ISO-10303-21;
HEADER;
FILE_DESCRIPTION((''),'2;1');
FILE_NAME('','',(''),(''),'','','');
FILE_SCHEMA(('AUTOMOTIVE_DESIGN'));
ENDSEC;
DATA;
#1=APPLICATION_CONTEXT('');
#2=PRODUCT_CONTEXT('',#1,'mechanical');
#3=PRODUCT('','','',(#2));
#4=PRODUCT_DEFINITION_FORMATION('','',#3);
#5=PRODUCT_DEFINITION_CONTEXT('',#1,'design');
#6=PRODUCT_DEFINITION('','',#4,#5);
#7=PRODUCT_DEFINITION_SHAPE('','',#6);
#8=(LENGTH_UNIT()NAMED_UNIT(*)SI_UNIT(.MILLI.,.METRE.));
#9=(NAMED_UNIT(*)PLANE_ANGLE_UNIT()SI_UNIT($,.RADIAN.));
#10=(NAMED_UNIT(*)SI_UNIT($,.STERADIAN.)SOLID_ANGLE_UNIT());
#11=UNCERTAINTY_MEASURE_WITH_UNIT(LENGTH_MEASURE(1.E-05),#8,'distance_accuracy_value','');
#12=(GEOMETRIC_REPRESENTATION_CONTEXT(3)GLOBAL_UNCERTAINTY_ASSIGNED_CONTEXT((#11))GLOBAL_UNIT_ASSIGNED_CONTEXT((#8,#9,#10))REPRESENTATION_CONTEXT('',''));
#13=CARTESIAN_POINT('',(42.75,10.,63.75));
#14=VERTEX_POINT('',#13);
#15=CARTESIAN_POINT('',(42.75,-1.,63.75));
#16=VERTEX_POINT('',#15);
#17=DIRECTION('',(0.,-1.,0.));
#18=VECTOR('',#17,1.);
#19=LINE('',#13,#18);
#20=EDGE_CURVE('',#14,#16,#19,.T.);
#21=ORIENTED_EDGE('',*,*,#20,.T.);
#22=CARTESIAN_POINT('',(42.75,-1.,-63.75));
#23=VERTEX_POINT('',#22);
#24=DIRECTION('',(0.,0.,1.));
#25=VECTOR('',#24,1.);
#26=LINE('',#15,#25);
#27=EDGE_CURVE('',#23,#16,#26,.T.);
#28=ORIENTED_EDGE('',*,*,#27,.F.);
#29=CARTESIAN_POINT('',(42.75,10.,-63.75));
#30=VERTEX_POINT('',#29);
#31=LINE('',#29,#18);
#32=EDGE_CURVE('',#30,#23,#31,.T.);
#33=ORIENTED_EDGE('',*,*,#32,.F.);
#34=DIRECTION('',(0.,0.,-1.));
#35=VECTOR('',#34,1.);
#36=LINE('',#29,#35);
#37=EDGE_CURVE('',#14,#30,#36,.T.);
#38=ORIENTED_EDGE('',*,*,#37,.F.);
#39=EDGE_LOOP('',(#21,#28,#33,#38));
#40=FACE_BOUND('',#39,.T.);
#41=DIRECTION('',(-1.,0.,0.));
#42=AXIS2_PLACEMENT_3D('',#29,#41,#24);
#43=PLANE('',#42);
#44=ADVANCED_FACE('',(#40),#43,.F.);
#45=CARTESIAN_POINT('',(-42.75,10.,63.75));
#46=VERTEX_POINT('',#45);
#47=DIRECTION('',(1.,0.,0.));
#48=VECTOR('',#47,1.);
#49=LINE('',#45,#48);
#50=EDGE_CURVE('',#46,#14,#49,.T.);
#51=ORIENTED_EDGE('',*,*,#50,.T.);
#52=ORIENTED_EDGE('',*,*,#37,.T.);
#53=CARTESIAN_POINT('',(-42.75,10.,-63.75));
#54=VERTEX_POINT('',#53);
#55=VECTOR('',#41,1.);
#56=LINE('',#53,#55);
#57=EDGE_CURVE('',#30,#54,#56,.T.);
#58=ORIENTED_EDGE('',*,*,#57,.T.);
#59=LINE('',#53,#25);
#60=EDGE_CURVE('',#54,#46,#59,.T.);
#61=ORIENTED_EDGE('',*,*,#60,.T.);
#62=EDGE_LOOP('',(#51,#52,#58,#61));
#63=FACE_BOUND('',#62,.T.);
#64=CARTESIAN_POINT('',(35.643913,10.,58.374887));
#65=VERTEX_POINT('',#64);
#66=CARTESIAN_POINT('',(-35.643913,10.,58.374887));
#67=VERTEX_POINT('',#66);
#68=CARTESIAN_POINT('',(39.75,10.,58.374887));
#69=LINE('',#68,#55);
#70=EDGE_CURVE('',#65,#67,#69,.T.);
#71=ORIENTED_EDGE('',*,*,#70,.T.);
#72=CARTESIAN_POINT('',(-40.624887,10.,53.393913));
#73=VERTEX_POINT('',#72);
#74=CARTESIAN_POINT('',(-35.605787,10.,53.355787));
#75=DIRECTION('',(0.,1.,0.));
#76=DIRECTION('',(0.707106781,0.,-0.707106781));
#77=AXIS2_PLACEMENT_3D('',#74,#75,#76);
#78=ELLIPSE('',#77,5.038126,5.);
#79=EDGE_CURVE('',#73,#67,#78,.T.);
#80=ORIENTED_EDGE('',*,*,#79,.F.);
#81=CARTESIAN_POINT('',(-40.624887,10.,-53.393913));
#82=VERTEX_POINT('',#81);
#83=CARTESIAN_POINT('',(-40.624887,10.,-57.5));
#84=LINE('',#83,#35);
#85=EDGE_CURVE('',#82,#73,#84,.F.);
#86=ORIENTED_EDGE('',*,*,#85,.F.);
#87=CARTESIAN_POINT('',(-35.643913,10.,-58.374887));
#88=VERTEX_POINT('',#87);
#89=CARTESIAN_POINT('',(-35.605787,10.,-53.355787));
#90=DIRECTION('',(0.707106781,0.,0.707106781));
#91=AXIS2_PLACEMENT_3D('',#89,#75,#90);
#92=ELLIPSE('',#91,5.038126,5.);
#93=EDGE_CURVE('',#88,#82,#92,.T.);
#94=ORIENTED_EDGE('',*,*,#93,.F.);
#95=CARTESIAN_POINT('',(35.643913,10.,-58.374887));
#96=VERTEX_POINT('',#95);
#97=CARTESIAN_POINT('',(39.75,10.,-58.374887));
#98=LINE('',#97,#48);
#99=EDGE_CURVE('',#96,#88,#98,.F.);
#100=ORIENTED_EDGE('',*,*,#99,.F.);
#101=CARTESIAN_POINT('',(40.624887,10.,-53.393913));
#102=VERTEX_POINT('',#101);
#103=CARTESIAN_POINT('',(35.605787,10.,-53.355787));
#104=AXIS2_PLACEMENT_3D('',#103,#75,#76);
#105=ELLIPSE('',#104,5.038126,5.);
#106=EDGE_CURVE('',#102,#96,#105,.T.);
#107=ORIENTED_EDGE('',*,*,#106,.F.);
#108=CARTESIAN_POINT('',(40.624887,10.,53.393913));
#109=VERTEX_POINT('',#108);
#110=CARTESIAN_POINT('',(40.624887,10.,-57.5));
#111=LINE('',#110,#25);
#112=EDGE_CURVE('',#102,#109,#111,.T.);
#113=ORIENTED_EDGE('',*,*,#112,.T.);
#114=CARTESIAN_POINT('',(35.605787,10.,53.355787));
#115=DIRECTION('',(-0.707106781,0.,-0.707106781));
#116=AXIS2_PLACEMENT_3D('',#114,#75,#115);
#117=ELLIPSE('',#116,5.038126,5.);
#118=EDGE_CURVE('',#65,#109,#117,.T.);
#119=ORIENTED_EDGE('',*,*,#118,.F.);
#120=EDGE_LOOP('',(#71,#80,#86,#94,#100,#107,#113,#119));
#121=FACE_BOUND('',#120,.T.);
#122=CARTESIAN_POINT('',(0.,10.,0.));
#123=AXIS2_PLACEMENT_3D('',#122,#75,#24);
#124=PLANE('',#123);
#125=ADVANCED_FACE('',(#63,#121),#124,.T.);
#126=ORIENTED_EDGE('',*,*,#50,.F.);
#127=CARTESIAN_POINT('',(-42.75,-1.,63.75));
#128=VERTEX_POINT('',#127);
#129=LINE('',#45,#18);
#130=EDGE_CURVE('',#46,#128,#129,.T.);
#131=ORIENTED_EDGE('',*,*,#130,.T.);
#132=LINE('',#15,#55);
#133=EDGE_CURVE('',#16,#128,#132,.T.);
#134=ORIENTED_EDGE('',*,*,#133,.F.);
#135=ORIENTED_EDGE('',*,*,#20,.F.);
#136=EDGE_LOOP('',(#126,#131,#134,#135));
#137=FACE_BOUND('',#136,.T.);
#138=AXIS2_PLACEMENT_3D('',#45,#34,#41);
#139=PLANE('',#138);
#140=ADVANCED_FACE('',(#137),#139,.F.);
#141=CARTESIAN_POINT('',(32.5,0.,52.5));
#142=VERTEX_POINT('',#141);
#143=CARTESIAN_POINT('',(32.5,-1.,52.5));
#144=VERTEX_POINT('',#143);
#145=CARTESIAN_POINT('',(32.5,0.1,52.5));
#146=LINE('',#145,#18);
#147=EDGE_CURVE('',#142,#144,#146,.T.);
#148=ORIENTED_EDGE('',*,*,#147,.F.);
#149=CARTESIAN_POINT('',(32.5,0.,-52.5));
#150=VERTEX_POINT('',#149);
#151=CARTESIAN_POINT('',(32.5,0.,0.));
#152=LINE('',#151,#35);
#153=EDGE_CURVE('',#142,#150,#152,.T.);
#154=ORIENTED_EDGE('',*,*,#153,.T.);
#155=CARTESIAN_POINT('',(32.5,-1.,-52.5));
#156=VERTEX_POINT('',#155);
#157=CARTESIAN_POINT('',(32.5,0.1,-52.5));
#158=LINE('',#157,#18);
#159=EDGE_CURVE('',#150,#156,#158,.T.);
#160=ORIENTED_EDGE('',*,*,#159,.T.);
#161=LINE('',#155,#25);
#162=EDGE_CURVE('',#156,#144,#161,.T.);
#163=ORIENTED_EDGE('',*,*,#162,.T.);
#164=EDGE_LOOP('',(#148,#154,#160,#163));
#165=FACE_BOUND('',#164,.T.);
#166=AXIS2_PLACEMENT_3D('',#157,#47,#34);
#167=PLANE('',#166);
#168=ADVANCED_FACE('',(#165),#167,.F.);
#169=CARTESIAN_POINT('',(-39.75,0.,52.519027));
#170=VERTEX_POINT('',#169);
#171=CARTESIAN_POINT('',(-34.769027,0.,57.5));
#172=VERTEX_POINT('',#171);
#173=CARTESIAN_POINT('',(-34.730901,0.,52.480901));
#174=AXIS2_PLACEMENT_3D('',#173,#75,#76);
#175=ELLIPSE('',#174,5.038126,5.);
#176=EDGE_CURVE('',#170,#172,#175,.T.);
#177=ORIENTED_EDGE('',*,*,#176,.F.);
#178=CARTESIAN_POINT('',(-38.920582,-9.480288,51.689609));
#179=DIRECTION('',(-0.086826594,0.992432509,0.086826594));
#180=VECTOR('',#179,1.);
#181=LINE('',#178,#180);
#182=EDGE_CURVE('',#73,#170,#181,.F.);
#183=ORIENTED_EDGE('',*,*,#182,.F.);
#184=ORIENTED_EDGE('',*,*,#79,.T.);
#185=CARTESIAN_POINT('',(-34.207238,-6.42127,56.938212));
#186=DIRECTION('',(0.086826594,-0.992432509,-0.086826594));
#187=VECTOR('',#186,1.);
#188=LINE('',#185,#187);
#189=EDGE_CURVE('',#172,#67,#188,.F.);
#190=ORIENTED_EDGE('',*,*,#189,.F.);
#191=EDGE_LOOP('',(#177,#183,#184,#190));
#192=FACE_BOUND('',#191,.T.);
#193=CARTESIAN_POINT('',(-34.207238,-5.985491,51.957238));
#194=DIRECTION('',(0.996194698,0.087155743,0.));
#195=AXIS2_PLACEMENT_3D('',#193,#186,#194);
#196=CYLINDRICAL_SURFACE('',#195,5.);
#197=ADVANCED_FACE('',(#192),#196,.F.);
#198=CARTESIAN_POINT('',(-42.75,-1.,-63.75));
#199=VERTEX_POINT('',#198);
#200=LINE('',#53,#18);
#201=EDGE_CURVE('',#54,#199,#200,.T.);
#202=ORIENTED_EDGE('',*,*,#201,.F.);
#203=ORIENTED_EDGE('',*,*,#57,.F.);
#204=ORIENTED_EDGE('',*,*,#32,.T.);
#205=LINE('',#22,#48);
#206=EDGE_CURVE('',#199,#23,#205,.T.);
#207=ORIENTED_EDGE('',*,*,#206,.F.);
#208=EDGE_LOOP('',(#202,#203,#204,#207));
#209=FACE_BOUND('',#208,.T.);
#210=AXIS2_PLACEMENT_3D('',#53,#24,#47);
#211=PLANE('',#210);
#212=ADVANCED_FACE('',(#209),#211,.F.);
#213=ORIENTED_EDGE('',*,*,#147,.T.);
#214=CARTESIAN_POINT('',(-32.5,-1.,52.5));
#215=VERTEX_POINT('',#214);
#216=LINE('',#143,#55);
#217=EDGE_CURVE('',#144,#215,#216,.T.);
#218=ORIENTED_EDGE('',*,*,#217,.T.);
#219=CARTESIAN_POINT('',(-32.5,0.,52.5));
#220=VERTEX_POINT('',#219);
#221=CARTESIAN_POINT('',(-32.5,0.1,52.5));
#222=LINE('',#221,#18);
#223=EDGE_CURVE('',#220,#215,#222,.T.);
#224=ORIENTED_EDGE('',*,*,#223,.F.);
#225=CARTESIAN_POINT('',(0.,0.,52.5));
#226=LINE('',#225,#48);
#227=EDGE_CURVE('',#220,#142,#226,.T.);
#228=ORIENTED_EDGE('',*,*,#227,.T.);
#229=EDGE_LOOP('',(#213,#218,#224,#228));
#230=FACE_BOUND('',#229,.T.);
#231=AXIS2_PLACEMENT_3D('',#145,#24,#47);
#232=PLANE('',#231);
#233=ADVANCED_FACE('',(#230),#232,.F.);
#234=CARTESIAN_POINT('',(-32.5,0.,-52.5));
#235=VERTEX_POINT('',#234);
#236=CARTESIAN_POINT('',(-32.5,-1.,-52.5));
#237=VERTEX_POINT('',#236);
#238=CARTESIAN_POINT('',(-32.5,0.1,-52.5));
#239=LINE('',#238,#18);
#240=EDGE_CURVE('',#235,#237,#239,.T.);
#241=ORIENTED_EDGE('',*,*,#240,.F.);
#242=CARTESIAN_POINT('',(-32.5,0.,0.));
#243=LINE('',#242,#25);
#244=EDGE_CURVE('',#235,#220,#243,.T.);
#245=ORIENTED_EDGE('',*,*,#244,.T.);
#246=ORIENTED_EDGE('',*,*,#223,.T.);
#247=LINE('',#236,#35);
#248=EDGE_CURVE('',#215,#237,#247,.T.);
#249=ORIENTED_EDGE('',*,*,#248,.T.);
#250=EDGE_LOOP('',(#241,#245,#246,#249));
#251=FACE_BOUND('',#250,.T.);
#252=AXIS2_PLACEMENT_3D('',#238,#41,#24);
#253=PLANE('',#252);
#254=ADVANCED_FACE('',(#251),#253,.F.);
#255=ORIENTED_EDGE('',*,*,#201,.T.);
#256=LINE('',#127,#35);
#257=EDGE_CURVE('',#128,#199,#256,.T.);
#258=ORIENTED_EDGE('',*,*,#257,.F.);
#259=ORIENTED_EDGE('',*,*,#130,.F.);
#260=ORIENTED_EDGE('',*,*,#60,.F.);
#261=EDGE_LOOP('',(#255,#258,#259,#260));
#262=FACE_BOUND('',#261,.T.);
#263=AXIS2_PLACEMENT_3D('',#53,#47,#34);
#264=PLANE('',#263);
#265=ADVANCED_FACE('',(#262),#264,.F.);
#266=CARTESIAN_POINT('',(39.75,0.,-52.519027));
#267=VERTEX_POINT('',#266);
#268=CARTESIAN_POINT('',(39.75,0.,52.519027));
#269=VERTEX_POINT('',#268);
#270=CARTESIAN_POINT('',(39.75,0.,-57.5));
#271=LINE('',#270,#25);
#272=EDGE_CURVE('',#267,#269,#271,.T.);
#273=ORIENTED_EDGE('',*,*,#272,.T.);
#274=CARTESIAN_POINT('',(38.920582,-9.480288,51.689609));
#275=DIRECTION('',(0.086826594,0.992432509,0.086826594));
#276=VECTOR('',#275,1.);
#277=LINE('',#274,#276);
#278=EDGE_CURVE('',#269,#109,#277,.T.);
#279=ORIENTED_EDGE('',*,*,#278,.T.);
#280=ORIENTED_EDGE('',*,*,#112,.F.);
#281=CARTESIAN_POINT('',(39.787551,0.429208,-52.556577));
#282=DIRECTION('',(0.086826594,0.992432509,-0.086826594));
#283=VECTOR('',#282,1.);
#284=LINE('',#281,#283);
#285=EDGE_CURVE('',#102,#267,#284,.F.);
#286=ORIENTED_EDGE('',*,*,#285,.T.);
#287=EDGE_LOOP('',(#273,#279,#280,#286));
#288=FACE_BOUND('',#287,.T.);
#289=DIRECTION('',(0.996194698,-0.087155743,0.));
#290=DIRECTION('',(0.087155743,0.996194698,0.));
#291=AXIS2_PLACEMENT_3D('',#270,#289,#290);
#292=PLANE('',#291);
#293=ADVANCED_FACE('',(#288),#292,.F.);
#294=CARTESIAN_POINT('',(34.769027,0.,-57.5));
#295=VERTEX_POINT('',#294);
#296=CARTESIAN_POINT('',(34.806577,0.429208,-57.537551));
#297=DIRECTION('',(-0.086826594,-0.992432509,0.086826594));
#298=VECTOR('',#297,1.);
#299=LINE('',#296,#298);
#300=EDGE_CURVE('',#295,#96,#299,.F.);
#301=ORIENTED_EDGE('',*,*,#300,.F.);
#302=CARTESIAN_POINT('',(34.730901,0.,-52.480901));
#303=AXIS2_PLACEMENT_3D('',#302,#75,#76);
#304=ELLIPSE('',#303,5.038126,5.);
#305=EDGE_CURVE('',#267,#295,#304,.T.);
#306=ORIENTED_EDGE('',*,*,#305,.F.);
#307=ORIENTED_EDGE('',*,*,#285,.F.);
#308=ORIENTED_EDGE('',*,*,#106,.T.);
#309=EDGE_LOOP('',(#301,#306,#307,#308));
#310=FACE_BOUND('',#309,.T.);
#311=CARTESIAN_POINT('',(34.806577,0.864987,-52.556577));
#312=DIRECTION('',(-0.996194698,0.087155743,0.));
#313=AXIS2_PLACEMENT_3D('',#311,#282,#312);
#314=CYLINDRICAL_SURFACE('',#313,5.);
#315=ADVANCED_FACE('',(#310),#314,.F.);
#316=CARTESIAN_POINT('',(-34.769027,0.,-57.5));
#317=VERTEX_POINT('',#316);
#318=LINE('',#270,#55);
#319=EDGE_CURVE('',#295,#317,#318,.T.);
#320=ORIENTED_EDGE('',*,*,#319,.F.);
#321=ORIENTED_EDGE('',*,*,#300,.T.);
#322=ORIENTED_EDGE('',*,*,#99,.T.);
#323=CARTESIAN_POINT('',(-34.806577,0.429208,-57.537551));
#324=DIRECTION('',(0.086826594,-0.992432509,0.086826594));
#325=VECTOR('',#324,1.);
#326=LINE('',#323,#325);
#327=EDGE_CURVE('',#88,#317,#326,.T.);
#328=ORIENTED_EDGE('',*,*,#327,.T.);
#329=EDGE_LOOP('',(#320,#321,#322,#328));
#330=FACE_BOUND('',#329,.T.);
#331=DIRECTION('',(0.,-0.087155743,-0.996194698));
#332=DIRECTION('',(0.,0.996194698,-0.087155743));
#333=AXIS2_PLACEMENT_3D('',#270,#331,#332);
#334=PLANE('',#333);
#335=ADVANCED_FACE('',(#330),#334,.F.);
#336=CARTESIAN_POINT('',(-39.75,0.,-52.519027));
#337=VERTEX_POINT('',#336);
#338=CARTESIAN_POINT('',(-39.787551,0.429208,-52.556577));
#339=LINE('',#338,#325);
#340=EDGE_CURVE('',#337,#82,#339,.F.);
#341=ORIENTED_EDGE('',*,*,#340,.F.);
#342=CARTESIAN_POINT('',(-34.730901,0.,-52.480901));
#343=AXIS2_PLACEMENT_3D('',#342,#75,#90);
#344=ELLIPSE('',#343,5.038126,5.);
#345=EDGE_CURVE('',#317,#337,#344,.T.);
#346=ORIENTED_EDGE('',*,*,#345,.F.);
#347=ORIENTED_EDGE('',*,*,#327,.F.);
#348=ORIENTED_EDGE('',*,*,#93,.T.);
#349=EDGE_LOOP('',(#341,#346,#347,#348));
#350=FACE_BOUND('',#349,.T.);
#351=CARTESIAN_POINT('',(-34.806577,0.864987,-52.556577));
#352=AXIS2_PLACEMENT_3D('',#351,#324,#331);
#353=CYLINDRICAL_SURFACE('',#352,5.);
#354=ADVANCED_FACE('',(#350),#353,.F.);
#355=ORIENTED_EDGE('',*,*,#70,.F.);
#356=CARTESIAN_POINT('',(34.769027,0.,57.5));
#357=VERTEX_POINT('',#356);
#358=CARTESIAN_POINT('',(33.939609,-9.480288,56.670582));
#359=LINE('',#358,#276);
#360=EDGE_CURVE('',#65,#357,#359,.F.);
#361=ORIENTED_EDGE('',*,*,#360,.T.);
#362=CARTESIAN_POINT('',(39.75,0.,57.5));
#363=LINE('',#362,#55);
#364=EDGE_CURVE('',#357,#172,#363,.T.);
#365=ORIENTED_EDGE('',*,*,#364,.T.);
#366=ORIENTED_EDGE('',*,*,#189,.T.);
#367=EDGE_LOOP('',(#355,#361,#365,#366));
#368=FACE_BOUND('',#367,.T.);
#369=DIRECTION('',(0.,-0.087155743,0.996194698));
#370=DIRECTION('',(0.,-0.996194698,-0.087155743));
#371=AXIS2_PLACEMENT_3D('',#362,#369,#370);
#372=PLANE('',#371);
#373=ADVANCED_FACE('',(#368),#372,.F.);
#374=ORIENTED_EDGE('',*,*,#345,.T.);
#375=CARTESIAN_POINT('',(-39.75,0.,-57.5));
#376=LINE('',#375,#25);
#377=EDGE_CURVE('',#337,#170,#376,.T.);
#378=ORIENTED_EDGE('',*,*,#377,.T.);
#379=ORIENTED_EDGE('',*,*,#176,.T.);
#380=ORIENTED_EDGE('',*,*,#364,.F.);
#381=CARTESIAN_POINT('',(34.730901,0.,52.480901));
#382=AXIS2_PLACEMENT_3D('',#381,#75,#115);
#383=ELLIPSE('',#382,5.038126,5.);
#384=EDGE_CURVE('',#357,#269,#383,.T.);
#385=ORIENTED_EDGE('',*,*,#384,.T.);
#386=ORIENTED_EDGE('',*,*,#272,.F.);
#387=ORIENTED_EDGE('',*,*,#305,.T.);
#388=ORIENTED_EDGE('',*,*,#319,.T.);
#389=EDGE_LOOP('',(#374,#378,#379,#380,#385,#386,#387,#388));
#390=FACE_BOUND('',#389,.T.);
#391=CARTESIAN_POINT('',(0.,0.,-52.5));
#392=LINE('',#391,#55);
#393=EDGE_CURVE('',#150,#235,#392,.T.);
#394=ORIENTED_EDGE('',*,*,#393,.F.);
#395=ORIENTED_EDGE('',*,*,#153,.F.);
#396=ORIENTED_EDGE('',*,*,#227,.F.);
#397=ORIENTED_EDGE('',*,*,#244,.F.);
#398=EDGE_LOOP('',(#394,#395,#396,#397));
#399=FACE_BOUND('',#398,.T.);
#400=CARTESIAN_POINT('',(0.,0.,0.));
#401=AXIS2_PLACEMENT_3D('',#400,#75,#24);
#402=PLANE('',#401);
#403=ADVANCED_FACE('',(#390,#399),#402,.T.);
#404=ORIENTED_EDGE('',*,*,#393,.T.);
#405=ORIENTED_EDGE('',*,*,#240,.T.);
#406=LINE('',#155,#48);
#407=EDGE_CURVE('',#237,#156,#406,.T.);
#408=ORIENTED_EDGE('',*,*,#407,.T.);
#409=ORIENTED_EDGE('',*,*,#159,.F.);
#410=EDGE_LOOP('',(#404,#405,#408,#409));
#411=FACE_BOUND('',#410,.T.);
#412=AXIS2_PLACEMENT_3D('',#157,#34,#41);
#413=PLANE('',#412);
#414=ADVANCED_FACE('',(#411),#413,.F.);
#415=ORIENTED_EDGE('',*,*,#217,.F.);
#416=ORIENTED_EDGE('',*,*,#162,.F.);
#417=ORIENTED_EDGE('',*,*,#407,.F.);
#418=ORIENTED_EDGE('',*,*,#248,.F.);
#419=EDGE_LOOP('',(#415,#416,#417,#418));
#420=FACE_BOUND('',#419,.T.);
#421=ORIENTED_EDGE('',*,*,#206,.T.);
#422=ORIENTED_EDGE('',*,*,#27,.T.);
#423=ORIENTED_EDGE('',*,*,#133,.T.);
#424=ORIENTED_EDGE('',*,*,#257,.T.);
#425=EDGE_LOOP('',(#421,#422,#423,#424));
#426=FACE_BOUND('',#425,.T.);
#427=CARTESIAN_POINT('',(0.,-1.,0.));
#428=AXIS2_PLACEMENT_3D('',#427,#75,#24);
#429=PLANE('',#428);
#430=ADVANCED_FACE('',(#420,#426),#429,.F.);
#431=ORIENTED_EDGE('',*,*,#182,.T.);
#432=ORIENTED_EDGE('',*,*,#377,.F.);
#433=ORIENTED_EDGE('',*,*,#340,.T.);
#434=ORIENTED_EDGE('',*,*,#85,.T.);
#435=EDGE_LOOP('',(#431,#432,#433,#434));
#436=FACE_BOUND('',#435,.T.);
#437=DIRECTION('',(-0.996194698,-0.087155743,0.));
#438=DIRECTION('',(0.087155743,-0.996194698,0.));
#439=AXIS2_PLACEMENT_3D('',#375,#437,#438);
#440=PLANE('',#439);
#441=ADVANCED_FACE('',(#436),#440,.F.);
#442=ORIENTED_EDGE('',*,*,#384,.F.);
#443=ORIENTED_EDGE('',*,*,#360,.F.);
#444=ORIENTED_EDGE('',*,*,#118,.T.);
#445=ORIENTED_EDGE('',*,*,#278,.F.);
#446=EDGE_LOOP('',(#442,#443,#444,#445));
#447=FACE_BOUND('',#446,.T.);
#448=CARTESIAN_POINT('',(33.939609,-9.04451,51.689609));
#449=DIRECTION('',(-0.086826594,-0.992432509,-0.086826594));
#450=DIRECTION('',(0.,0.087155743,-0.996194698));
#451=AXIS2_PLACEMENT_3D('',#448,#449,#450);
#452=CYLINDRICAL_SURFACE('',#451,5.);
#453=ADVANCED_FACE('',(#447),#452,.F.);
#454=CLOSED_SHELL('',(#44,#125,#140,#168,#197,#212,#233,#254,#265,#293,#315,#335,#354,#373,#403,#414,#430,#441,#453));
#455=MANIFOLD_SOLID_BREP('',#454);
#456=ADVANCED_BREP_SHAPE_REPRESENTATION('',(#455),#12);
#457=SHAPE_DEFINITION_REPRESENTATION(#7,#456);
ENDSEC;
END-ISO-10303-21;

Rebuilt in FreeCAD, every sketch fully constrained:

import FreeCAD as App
import Part
import Sketcher


def edges_at(feature, points):
    """Names of the edges that pass closest to the given points."""
    edges = feature.Shape.Edges
    near = lambda p: min(range(len(edges)), key=lambda i: edges[i].distToShape(Part.Vertex(*p))[0])
    return sorted({f"Edge{near(p) + 1}" for p in points})


def add_polygon(sketch, points):
    """Adds a closed chain of lines whose ends are joined by coincident constraints."""
    first, n = sketch.GeometryCount, len(points)
    for a, b in zip(points, points[1:] + points[:1]):
        sketch.addGeometry(Part.LineSegment(App.Vector(*a, 0), App.Vector(*b, 0)), False)
    for i in range(n):
        sketch.addConstraint(Sketcher.Constraint("Coincident", first + i, 2, first + (i + 1) % n, 1))

doc = App.newDocument("Part")
body = doc.addObject("PartDesign::Body", "Body")

# Sketch on XZ plane
sketch1 = body.newObject("Sketcher::SketchObject", "Sketch")
sketch1.AttachmentSupport = (doc.getObject("XZ_Plane"), [""])
sketch1.MapMode = "FlatFace"
add_polygon(sketch1, [(-42.75, -63.75), (-42.75, 63.75), (42.75, 63.75), (42.75, -63.75)])  # lines 0-3
sketch1.addConstraint([
    Sketcher.Constraint("Vertical", 0),
    Sketcher.Constraint("Horizontal", 1),
    Sketcher.Constraint("Vertical", 2),
    Sketcher.Constraint("Horizontal", 3),
    Sketcher.Constraint("Symmetric", 0, 2, 2, 2, -1, 1),
    Sketcher.Constraint("DistanceX", 1, 1, 1, 2, 85.5),
    Sketcher.Constraint("DistanceY", 0, 1, 0, 2, 127.5),
])
pad1 = body.newObject("PartDesign::Pad", "Pad")
pad1.Profile = sketch1
pad1.Length = 10
pad1.Reversed = True

# Sketch on XZ plane
sketch2 = body.newObject("Sketcher::SketchObject", "Sketch001")
sketch2.AttachmentSupport = (doc.getObject("XZ_Plane"), [""])
sketch2.MapMode = "FlatFace"
add_polygon(sketch2, [(-39.75, 57.5), (-39.75, -57.5), (39.75, -57.5), (39.75, 57.5)])  # lines 0-3
sketch2.addConstraint([
    Sketcher.Constraint("Vertical", 0),
    Sketcher.Constraint("Horizontal", 1),
    Sketcher.Constraint("Vertical", 2),
    Sketcher.Constraint("Horizontal", 3),
    Sketcher.Constraint("Symmetric", 0, 2, 2, 2, -1, 1),
    Sketcher.Constraint("DistanceY", 0, 2, 0, 1, 115.0),
    Sketcher.Constraint("DistanceX", 1, 1, 1, 2, 79.5),
])
pocket1 = body.newObject("PartDesign::Pocket", "Pocket")
pocket1.Profile = sketch2
pocket1.Length = 10
pocket1.TaperAngle = 5

# Sketch on XZ plane
sketch3 = body.newObject("Sketcher::SketchObject", "Sketch002")
sketch3.AttachmentSupport = (doc.getObject("XZ_Plane"), [""])
sketch3.MapMode = "FlatFace"
add_polygon(sketch3, [(-42.75, 63.75), (-42.75, -63.75), (42.75, -63.75), (42.75, 63.75)])  # lines 0-3
sketch3.addConstraint([
    Sketcher.Constraint("Vertical", 0),
    Sketcher.Constraint("Horizontal", 1),
    Sketcher.Constraint("Vertical", 2),
    Sketcher.Constraint("Horizontal", 3),
    Sketcher.Constraint("Symmetric", 0, 2, 2, 2, -1, 1),
    Sketcher.Constraint("DistanceX", 1, 1, 1, 2, 85.5),
    Sketcher.Constraint("DistanceY", 0, 2, 0, 1, 127.5),
])
pad2 = body.newObject("PartDesign::Pad", "Pad001")
pad2.Profile = sketch3
pad2.Length = 1

# Sketch on XZ plane
sketch4 = body.newObject("Sketcher::SketchObject", "Sketch003")
sketch4.AttachmentSupport = (doc.getObject("XZ_Plane"), [""])
sketch4.MapMode = "FlatFace"
sketch4.AttachmentOffset = App.Placement(App.Vector(0, 0, 1), App.Rotation())
add_polygon(sketch4, [(-32.5, 52.5), (-32.5, -52.5), (32.5, -52.5), (32.5, 52.5)])  # lines 0-3
sketch4.addConstraint([
    Sketcher.Constraint("Vertical", 0),
    Sketcher.Constraint("Horizontal", 1),
    Sketcher.Constraint("Vertical", 2),
    Sketcher.Constraint("Horizontal", 3),
    Sketcher.Constraint("Symmetric", 0, 2, 2, 2, -1, 1),
    Sketcher.Constraint("DistanceX", 1, 1, 1, 2, 65.0),
    Sketcher.Constraint("DistanceY", 0, 2, 0, 1, 105.0),
])
pocket2 = body.newObject("PartDesign::Pocket", "Pocket001")
pocket2.Profile = sketch4
pocket2.Length = 1.1
doc.recompute()

fillet = body.newObject("PartDesign::Fillet", "Fillet")
fillet.Base = (pocket2, edges_at(pocket2, [(40.187, 5, 57.937)]))
fillet.Radius = 5
doc.recompute()

fillet2 = body.newObject("PartDesign::Fillet", "Fillet001")
fillet2.Base = (fillet, edges_at(fillet, [(-40.187, 5, 57.937)]))
fillet2.Radius = 5
doc.recompute()

fillet3 = body.newObject("PartDesign::Fillet", "Fillet002")
fillet3.Base = (fillet2, edges_at(fillet2, [(-40.187, 5, -57.937)]))
fillet3.Radius = 5
doc.recompute()

fillet4 = body.newObject("PartDesign::Fillet", "Fillet003")
fillet4.Base = (fillet3, edges_at(fillet3, [(40.187, 5, -57.937)]))
fillet4.Radius = 5

doc.recompute()
